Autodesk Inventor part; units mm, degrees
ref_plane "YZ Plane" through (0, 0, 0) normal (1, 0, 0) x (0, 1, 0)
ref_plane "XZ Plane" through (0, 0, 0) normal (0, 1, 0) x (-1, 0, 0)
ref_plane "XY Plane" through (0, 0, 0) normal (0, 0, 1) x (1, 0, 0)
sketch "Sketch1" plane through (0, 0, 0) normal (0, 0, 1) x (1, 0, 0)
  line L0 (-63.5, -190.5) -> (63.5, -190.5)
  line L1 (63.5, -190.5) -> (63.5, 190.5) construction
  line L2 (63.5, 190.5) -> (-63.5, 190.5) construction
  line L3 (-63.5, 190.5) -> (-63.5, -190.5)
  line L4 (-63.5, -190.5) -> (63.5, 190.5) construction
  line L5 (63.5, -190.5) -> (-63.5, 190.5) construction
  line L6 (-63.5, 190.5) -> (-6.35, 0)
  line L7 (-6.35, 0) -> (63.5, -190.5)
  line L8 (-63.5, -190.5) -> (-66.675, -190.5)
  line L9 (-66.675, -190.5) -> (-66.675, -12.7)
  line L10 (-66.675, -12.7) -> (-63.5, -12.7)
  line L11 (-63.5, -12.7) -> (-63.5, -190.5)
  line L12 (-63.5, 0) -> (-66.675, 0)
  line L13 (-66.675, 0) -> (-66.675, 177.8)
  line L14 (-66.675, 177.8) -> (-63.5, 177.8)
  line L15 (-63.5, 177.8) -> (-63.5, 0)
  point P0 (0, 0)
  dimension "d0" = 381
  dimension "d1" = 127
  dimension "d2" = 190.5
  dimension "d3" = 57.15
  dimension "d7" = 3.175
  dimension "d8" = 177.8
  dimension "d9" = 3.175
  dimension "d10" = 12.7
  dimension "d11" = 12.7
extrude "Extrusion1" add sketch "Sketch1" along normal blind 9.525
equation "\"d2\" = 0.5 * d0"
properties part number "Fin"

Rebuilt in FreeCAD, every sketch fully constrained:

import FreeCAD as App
import Part
import Sketcher
Q = App.Units.Quantity


def add_polygon(sketch, points):
    """Adds a closed chain of lines whose ends are joined by coincident constraints."""
    first, n = sketch.GeometryCount, len(points)
    for a, b in zip(points, points[1:] + points[:1]):
        sketch.addGeometry(Part.LineSegment(App.Vector(*a, 0), App.Vector(*b, 0)), False)
    for i in range(n):
        sketch.addConstraint(Sketcher.Constraint("Coincident", first + i, 2, first + (i + 1) % n, 1))

doc = App.newDocument("Part")
body = doc.addObject("PartDesign::Body", "Body")

# Sketch on XY plane
sketch1 = body.newObject("Sketcher::SketchObject", "Sketch")
sketch1.AttachmentSupport = (doc.getObject("XY_Plane"), [""])
sketch1.MapMode = "FlatFace"
add_polygon(sketch1, [(-63.5, 0), (-63.5, -12.7), (-66.7, -12.7), (-66.7, -190.5), (63.5, -190.5), (-6.3, 0), (-63.5, 190.5), (-63.5, 177.8), (-66.7, 177.8), (-66.7, 0)])  # lines 0-9
sketch1.addConstraint([
    Sketcher.Constraint("Vertical", 0),
    Sketcher.Constraint("Horizontal", 1),
    Sketcher.Constraint("Vertical", 2),
    Sketcher.Constraint("Horizontal", 3),
    Sketcher.Constraint("Vertical", 6),
    Sketcher.Constraint("Horizontal", 7),
    Sketcher.Constraint("Vertical", 8),
    Sketcher.Constraint("Horizontal", 9),
    Sketcher.Constraint("Symmetric", 3, 2, 5, 2, -1, 1),
    Sketcher.Constraint("PointOnObject", 4, 2, -1),
    Sketcher.Constraint("PointOnObject", 8, 2, -1),
    Sketcher.Constraint("Vertical", 0, 2, 5, 2),
    Sketcher.Constraint("Vertical", 2, 2, 7, 2),
    Sketcher.Constraint("Equal", 0, 6),
    Sketcher.Constraint("DistanceY", 2, 2, 2, 1, Q("7 in")),
    Sketcher.Constraint("DistanceY", 0, 2, 0, 1, Q("0.5 in")),
    Sketcher.Constraint("DistanceX", 0, 2, 3, 2, Q("5 in")),
    Sketcher.Constraint("DistanceX", 1, 2, 1, 1, Q("0.125 in")),
    Sketcher.Constraint("DistanceX", 0, 2, 4, 2, Q("2.25 in")),
])
pad1 = body.newObject("PartDesign::Pad", "Pad")
pad1.Profile = sketch1
pad1.Length = Q("0.375 in")

doc.recompute()
